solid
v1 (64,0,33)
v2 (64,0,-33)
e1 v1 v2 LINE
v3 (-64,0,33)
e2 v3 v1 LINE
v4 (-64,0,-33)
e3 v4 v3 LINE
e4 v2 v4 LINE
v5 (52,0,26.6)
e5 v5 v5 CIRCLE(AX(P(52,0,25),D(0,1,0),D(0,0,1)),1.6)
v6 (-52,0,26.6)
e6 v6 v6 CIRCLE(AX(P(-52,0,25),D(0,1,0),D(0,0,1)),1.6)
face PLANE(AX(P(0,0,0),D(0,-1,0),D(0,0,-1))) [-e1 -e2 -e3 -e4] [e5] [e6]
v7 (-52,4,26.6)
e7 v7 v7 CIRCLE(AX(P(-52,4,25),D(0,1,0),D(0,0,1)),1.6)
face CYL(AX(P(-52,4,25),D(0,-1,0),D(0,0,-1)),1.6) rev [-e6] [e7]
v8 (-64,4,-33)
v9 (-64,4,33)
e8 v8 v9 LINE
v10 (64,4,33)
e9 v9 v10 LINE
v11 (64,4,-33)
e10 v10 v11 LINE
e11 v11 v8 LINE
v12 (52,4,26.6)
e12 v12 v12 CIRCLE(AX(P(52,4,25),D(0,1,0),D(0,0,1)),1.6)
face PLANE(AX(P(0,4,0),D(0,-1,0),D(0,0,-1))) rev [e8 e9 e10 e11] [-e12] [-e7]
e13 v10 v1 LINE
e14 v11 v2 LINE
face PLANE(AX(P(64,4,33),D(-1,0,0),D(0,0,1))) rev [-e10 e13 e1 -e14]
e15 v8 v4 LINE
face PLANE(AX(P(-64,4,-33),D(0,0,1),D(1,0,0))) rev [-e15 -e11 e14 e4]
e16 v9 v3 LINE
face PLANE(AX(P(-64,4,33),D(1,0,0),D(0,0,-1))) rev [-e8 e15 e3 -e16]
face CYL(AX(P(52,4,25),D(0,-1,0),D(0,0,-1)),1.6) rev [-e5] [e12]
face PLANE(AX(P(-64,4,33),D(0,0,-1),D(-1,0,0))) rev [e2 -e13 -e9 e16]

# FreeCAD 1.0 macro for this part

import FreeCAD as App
import Part
import Sketcher


def add_polygon(sketch, points):
    """Adds a closed chain of lines whose ends are joined by coincident constraints."""
    first, n = sketch.GeometryCount, len(points)
    for a, b in zip(points, points[1:] + points[:1]):
        sketch.addGeometry(Part.LineSegment(App.Vector(*a, 0), App.Vector(*b, 0)), False)
    for i in range(n):
        sketch.addConstraint(Sketcher.Constraint("Coincident", first + i, 2, first + (i + 1) % n, 1))

doc = App.newDocument("Part")
body = doc.addObject("PartDesign::Body", "Body")

# Sketch on XZ plane
sketch1 = body.newObject("Sketcher::SketchObject", "Sketch")
sketch1.AttachmentSupport = (doc.getObject("XZ_Plane"), [""])
sketch1.MapMode = "FlatFace"
add_polygon(sketch1, [(-64, -33), (-64, 33), (64, 33), (64, -33)])  # lines 0-3
sketch1.addGeometry(Part.Circle(App.Vector(-52, 25, 0), App.Vector(0, 0, 1), 1.6), False)  # 4
sketch1.addGeometry(Part.Circle(App.Vector(52, 25, 0), App.Vector(0, 0, 1), 1.6), False)  # 5
sketch1.addConstraint(Sketcher.Constraint("Vertical", 0))
sketch1.addConstraint(Sketcher.Constraint("Horizontal", 1))
sketch1.addConstraint(Sketcher.Constraint("Vertical", 2))
sketch1.addConstraint(Sketcher.Constraint("Horizontal", 3))
sketch1.addConstraint(Sketcher.Constraint("Equal", 4, 5))
sketch1.addConstraint(Sketcher.Constraint("Symmetric", 0, 2, 2, 2, -1, 1))
sketch1.addConstraint(Sketcher.Constraint("Symmetric", 4, 3, 5, 3, -2))
sketch1.addConstraint(Sketcher.Constraint("Diameter", 4, 3.2))
sketch1.addConstraint(Sketcher.Constraint("DistanceX", 1, 1, 1, 2, 128.0))
sketch1.addConstraint(Sketcher.Constraint("DistanceY", 0, 1, 0, 2, 66.0))
sketch1.addConstraint(Sketcher.Constraint("DistanceX", 4, 3, -1, 1, 52.0))
sketch1.addConstraint(Sketcher.Constraint("DistanceY", -1, 1, 4, 3, 25.0))
pad1 = body.newObject("PartDesign::Pad", "Pad")
pad1.Profile = sketch1
pad1.Length = 4
pad1.Reversed = True

doc.recompute()
